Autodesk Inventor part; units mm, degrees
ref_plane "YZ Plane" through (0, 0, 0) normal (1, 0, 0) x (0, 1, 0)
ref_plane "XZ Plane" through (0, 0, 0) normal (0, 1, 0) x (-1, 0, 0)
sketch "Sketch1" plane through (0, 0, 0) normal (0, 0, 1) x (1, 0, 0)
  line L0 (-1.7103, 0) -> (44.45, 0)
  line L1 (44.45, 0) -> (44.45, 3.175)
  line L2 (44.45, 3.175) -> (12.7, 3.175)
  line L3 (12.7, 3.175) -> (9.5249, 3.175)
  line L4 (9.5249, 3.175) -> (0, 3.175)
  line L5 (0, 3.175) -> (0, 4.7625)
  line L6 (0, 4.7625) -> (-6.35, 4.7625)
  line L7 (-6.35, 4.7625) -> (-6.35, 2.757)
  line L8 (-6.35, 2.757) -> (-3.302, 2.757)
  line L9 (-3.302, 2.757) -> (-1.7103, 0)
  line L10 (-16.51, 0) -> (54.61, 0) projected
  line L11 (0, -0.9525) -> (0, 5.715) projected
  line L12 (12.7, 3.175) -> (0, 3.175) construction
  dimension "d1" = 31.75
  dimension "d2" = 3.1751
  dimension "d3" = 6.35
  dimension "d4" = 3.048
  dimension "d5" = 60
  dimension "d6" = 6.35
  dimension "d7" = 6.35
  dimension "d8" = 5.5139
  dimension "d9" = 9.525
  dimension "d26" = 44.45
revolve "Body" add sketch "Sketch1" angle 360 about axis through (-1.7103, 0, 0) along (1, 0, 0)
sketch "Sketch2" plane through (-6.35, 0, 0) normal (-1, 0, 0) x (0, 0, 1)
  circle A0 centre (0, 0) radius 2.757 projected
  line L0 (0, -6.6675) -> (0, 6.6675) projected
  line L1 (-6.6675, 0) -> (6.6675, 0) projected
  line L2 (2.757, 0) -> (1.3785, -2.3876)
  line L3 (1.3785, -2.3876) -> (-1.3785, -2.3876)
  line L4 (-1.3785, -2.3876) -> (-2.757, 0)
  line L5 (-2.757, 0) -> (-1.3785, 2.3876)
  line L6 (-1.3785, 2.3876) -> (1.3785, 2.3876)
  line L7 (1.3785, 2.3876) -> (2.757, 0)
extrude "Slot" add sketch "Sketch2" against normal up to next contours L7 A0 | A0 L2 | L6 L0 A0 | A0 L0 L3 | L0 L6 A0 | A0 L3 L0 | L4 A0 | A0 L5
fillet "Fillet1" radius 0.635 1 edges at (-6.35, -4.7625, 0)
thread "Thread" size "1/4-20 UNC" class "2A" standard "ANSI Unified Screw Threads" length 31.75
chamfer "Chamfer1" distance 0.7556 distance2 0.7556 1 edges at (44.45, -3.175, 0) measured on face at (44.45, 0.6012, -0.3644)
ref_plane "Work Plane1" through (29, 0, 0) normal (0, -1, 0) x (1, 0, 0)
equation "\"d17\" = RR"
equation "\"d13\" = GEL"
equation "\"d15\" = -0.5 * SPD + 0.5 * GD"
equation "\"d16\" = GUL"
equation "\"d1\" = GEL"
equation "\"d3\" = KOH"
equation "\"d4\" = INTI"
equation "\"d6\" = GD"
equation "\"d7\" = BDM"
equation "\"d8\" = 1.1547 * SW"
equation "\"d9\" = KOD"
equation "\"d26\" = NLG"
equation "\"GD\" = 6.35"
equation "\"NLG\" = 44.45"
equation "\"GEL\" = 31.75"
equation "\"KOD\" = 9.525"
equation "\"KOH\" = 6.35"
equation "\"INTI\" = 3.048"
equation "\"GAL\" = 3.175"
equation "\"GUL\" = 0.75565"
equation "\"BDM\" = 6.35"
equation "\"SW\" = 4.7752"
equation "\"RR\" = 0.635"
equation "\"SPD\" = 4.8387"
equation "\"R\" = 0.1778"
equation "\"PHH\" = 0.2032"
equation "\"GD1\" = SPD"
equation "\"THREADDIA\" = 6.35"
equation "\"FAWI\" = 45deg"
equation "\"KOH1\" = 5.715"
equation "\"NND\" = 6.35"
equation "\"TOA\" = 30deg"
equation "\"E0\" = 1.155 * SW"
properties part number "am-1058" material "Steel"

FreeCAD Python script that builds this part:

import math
import FreeCAD as App
import Part
import Sketcher

V = App.Vector
Q = App.Units.Quantity


def edges_at(feature, points):
    """Names of the edges that pass closest to the given points."""
    edges = feature.Shape.Edges
    near = lambda p: min(range(len(edges)), key=lambda i: edges[i].distToShape(Part.Vertex(*p))[0])
    return sorted({f"Edge{near(p) + 1}" for p in points})

doc = App.newDocument("Part")
body = doc.addObject("PartDesign::Body", "Body")

# Sketch on XY plane
sketch1 = body.newObject("Sketcher::SketchObject", "Sketch")
sketch1.AttachmentSupport = (doc.getObject("XY_Plane"), [""])
sketch1.MapMode = "FlatFace"
sketch1.addGeometry([
    Part.LineSegment(V(-3.3, 2.8, 0), V(-1.7, 0, 0)),  # 0
    Part.LineSegment(V(-1.7, 0, 0), V(44.5, 0, 0)),  # 1
    Part.LineSegment(V(44.5, 0, 0), V(44.5, 3.2, 0)),  # 2
    Part.LineSegment(V(44.5, 3.2, 0), V(0, 3.2, 0)),  # 3
    Part.LineSegment(V(0, 3.2, 0), V(0, 4.8, 0)),  # 4
    Part.LineSegment(V(0, 4.8, 0), V(-6.3, 4.8, 0)),  # 5
    Part.LineSegment(V(-6.3, 4.8, 0), V(-6.3, 2.8, 0)),  # 6
    Part.LineSegment(V(-6.3, 2.8, 0), V(-3.3, 2.8, 0)),  # 7
], False)
sketch1.addConstraint([
    Sketcher.Constraint("Coincident", 0, 2, 1, 1),
    Sketcher.Constraint("Coincident", 1, 2, 2, 1),
    Sketcher.Constraint("Coincident", 2, 2, 3, 1),
    Sketcher.Constraint("Coincident", 3, 2, 4, 1),
    Sketcher.Constraint("Coincident", 4, 2, 5, 1),
    Sketcher.Constraint("Coincident", 5, 2, 6, 1),
    Sketcher.Constraint("Coincident", 6, 2, 7, 1),
    Sketcher.Constraint("Coincident", 7, 2, 0, 1),
    Sketcher.Constraint("Horizontal", 1),
    Sketcher.Constraint("Vertical", 2),
    Sketcher.Constraint("Horizontal", 3),
    Sketcher.Constraint("Vertical", 4),
    Sketcher.Constraint("Horizontal", 5),
    Sketcher.Constraint("Vertical", 6),
    Sketcher.Constraint("Horizontal", 7),
    Sketcher.Constraint("PointOnObject", 0, 2, -1),
    Sketcher.Constraint("PointOnObject", 3, 2, -2),
    Sketcher.Constraint("DistanceX", 3, 2, 3, 1, Q("1.75 in")),
    Sketcher.Constraint("DistanceX", 5, 2, 5, 1, Q("0.25 in")),
    Sketcher.Constraint("DistanceX", 7, 1, 7, 2, Q("0.12 in")),
    Sketcher.Constraint("DistanceY", 2, 1, 2, 2, Q("0.125 in")),
    Sketcher.Constraint("Angle", 0, Q("-60.0009 deg")),
    Sketcher.Constraint("DistanceY", 4, 1, 4, 2, Q("0.0625 in")),
    Sketcher.Constraint("DistanceX", 1, 1, 1, 2, 46.1603),
])
revolution = body.newObject("PartDesign::Revolution", "Revolution")
revolution.Profile = sketch1
revolution.ReferenceAxis = (sketch1, ["H_Axis"])
revolution.Angle = 360

# Sketch on YZ plane
sketch2 = body.newObject("Sketcher::SketchObject", "Sketch001")
sketch2.AttachmentSupport = (doc.getObject("YZ_Plane"), [""])
sketch2.MapMode = "FlatFace"
sketch2.AttachmentOffset = App.Placement(V(0, 0, -0.25 * 25.4), App.Rotation())
sketch2.addGeometry([
    Part.LineSegment(V(2.4, 1.4, 0), V(0, 2.8, 0)),  # 0
    Part.ArcOfCircle(Part.Circle(V(0, 0, 0), V(0, 0, 1), 2.8), math.radians(30), math.radians(90)),  # 1
    Part.ArcOfCircle(Part.Circle(V(0, 0, 0), V(0, 0, 1), 2.8), math.radians(90), math.radians(150)),  # 2
    Part.LineSegment(V(0, 2.8, 0), V(-2.4, 1.4, 0)),  # 3
    Part.ArcOfCircle(Part.Circle(V(0, 0, 0), V(0, 0, 1), 2.8), math.radians(-30), math.radians(30)),  # 4
    Part.LineSegment(V(2.4, 1.4, 0), V(2.4, -1.4, 0)),  # 5
    Part.LineSegment(V(-2.4, 1.4, 0), V(-2.4, -1.4, 0)),  # 6
    Part.ArcOfCircle(Part.Circle(V(0, 0, 0), V(0, 0, 1), 2.8), math.radians(150), math.radians(210)),  # 7
    Part.LineSegment(V(-2.4, -1.4, 0), V(0, -2.8, 0)),  # 8
    Part.ArcOfCircle(Part.Circle(V(0, 0, 0), V(0, 0, 1), 2.8), math.radians(-150), math.radians(-90)),  # 9
    Part.ArcOfCircle(Part.Circle(V(0, 0, 0), V(0, 0, 1), 2.8), math.radians(-90), math.radians(-30)),  # 10
    Part.LineSegment(V(0, -2.8, 0), V(2.4, -1.4, 0)),  # 11
], False)
sketch2.addConstraint([
    Sketcher.Constraint("Coincident", 0, 1, 1, 1),
    Sketcher.Constraint("Coincident", 1, 2, 0, 2),
    Sketcher.Constraint("Coincident", 2, 1, 3, 1),
    Sketcher.Constraint("Coincident", 3, 2, 2, 2),
    Sketcher.Constraint("Coincident", 4, 1, 5, 2),
    Sketcher.Constraint("Coincident", 5, 1, 4, 2),
    Sketcher.Constraint("Coincident", 6, 1, 7, 1),
    Sketcher.Constraint("Coincident", 7, 2, 6, 2),
    Sketcher.Constraint("Coincident", 8, 1, 9, 1),
    Sketcher.Constraint("Coincident", 9, 2, 8, 2),
    Sketcher.Constraint("Coincident", 10, 1, 11, 1),
    Sketcher.Constraint("Coincident", 11, 2, 10, 2),
    Sketcher.Constraint("Vertical", 5),
    Sketcher.Constraint("Vertical", 6),
    Sketcher.Constraint("Coincident", 1, 3, -1, 1),
    Sketcher.Constraint("Coincident", 2, 3, -1, 1),
    Sketcher.Constraint("Coincident", 4, 3, -1, 1),
    Sketcher.Constraint("Coincident", 7, 3, -1, 1),
    Sketcher.Constraint("Coincident", 9, 3, -1, 1),
    Sketcher.Constraint("Coincident", 10, 3, -1, 1),
    Sketcher.Constraint("Coincident", 2, 1, 1, 2),
    Sketcher.Constraint("Coincident", 5, 1, 0, 1),
    Sketcher.Constraint("Coincident", 6, 1, 3, 2),
    Sketcher.Constraint("Coincident", 8, 1, 7, 2),
    Sketcher.Constraint("Coincident", 10, 1, 9, 2),
    Sketcher.Constraint("PointOnObject", 1, 2, -2),
    Sketcher.Constraint("PointOnObject", 9, 2, -2),
    Sketcher.Constraint("Parallel", 0, 8),
    Sketcher.Constraint("Parallel", 3, 11),
    Sketcher.Constraint("Angle", 0, Q("149.9997 deg")),
    Sketcher.Constraint("Radius", 1, 2.757),
])
pad1 = body.newObject("PartDesign::Pad", "Pad")
pad1.Profile = sketch2
pad1.Type = "UpToFirst"
doc.recompute()

fillet = body.newObject("PartDesign::Fillet", "Fillet")
fillet.Base = (pad1, edges_at(pad1, [(-6.35, -4.763, 0)]))
fillet.Radius = Q("0.025 in")
doc.recompute()

chamfer = body.newObject("PartDesign::Chamfer", "Chamfer")
chamfer.Base = (fillet, edges_at(fillet, [(44.45, -3.175, 0)]))
chamfer.ChamferType = "Two distances"
chamfer.Size = 0.7556
chamfer.Size2 = 0.7556

doc.recompute()
